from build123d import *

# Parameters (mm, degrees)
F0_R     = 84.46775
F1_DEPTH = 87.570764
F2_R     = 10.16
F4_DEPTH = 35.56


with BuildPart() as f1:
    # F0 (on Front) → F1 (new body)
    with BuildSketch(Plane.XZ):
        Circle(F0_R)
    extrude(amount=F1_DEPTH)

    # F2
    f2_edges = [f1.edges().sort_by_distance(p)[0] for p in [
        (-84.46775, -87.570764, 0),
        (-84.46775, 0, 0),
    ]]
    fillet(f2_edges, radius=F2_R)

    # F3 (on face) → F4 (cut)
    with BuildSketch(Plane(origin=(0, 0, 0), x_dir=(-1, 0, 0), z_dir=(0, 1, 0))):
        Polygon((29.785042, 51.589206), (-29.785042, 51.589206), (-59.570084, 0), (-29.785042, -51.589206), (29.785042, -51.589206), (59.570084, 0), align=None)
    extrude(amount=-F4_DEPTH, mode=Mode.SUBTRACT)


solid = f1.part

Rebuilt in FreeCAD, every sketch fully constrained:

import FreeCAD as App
import Part
import Sketcher

V = App.Vector
Q = App.Units.Quantity


def edges_at(feature, points):
    """Names of the edges that pass closest to the given points."""
    edges = feature.Shape.Edges
    near = lambda p: min(range(len(edges)), key=lambda i: edges[i].distToShape(Part.Vertex(*p))[0])
    return sorted({f"Edge{near(p) + 1}" for p in points})


def add_polygon(sketch, points):
    """Adds a closed chain of lines whose ends are joined by coincident constraints."""
    first, n = sketch.GeometryCount, len(points)
    for a, b in zip(points, points[1:] + points[:1]):
        sketch.addGeometry(Part.LineSegment(App.Vector(*a, 0), App.Vector(*b, 0)), False)
    for i in range(n):
        sketch.addConstraint(Sketcher.Constraint("Coincident", first + i, 2, first + (i + 1) % n, 1))

doc = App.newDocument("Part")
body = doc.addObject("PartDesign::Body", "Body")

# Sketch on XZ plane
sketch1 = doc.addObject("Sketcher::SketchObject", "Sketch")
body.addObject(sketch1)
sketch1.AttachmentSupport = (doc.XZ_Plane, [""])
sketch1.MapMode = "FlatFace"
sketch1.addGeometry(Part.Circle(V(0, 0, 0), V(0, 0, 1), 84), False)
sketch1.addConstraint(Sketcher.Constraint("Coincident", 0, 3, -1, 1))
sketch1.addConstraint(Sketcher.Constraint("Diameter", 0, 168.9355))
pad1 = doc.addObject("PartDesign::Pad", "Pad")
body.addObject(pad1)
pad1.Profile = sketch1
pad1.Length = 87.570764
doc.recompute()

fillet = doc.addObject("PartDesign::Fillet", "Fillet")
body.addObject(fillet)
fillet.Base = (pad1, edges_at(pad1, [(-84.468, -87.571, 0), (-84.468, 0, 0)]))
fillet.Radius = Q("0.4 in")

# Sketch on XZ plane
sketch2 = doc.addObject("Sketcher::SketchObject", "Sketch001")
body.addObject(sketch2)
sketch2.AttachmentSupport = (doc.XZ_Plane, [""])
sketch2.MapMode = "FlatFace"
add_polygon(sketch2, [(-30, 52), (30, 52), (60, 0), (30, -52), (-30, -52), (-60, 0)])  # lines 0-5
sketch2.addConstraint(Sketcher.Constraint("Horizontal", 0))
sketch2.addConstraint(Sketcher.Constraint("Horizontal", 3))
sketch2.addConstraint(Sketcher.Constraint("Symmetric", 0, 2, 3, 2, -1, 1))
sketch2.addConstraint(Sketcher.Constraint("Symmetric", 1, 2, 4, 2, -1, 1))
sketch2.addConstraint(Sketcher.Constraint("PointOnObject", 1, 2, -1))
sketch2.addConstraint(Sketcher.Constraint("Parallel", 2, 5))
sketch2.addConstraint(Sketcher.Constraint("Vertical", 0, 2, 2, 2))
sketch2.addConstraint(Sketcher.Constraint("Angle", 1, Q("-60 deg")))
sketch2.addConstraint(Sketcher.Constraint("DistanceX", 0, 1, 0, 2, 59.570084))
sketch2.addConstraint(Sketcher.Constraint("DistanceY", 2, 2, 0, 2, 103.178412))
pocket1 = doc.addObject("PartDesign::Pocket", "Pocket")
body.addObject(pocket1)
pocket1.Profile = sketch2
pocket1.Length = Q("1.4 in")
pocket1.Reversed = True

doc.recompute()
